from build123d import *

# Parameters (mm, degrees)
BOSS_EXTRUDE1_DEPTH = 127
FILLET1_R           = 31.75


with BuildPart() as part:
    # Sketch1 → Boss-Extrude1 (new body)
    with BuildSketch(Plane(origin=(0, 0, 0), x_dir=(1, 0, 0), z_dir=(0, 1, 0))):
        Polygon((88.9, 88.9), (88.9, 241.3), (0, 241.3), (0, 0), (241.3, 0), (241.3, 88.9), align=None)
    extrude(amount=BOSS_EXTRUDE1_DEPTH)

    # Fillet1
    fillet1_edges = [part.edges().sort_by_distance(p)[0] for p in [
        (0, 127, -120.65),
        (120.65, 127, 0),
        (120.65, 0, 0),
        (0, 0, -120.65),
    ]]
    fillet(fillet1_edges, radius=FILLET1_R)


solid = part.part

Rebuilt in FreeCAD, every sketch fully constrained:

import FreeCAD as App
import Part
import Sketcher
Q = App.Units.Quantity


def edges_at(feature, points):
    """Names of the edges that pass closest to the given points."""
    edges = feature.Shape.Edges
    near = lambda p: min(range(len(edges)), key=lambda i: edges[i].distToShape(Part.Vertex(*p))[0])
    return sorted({f"Edge{near(p) + 1}" for p in points})

doc = App.newDocument("Part")
body = doc.addObject("PartDesign::Body", "Body")

sketch1 = doc.addObject("Sketcher::SketchObject", "Sketch")
body.addObject(sketch1)
sketch1.AttachmentSupport = (doc.XZ_Plane, [""])
sketch1.MapMode = "FlatFace"
sketch1.addGeometry([
    Part.LineSegment(App.Vector(89, -89, 0), App.Vector(89, -241, 0)),
    Part.LineSegment(App.Vector(89, -241, 0), App.Vector(0, -241, 0)),
    Part.LineSegment(App.Vector(0, -241, 0), App.Vector(0, 0, 0)),
    Part.LineSegment(App.Vector(0, 0, 0), App.Vector(241, 0, 0)),
    Part.LineSegment(App.Vector(241, 0, 0), App.Vector(241, -89, 0)),
    Part.LineSegment(App.Vector(241, -89, 0), App.Vector(89, -89, 0)),
], False)
sketch1.addConstraint([
    Sketcher.Constraint("Coincident", 0, 2, 1, 1),
    Sketcher.Constraint("Coincident", 1, 2, 2, 1),
    Sketcher.Constraint("Coincident", 2, 2, 3, 1),
    Sketcher.Constraint("Coincident", 3, 2, 4, 1),
    Sketcher.Constraint("Coincident", 4, 2, 5, 1),
    Sketcher.Constraint("Coincident", 5, 2, 0, 1),
    Sketcher.Constraint("Vertical", 0),
    Sketcher.Constraint("Horizontal", 1),
    Sketcher.Constraint("Vertical", 2),
    Sketcher.Constraint("Horizontal", 3),
    Sketcher.Constraint("Vertical", 4),
    Sketcher.Constraint("Horizontal", 5),
    Sketcher.Constraint("Coincident", 2, 2, -1, 1),
    Sketcher.Constraint("Equal", 5, 0),
    Sketcher.Constraint("Equal", 3, 2),
    Sketcher.Constraint("DistanceX", 5, 2, 5, 1, Q("6 in")),
    Sketcher.Constraint("DistanceX", 1, 2, 1, 1, Q("3.5 in")),
])
pad1 = doc.addObject("PartDesign::Pad", "Pad")
body.addObject(pad1)
pad1.Profile = sketch1
pad1.Length = Q("5 in")
pad1.Reversed = True
doc.recompute()

fillet = doc.addObject("PartDesign::Fillet", "Fillet")
body.addObject(fillet)
fillet.Base = (pad1, edges_at(pad1, [
    (0, 127, -120.65),
    (120.65, 127, 0),
    (120.65, 0, 0),
    (0, 0, -120.65),
]))
fillet.Radius = Q("1.25 in")

doc.recompute()
